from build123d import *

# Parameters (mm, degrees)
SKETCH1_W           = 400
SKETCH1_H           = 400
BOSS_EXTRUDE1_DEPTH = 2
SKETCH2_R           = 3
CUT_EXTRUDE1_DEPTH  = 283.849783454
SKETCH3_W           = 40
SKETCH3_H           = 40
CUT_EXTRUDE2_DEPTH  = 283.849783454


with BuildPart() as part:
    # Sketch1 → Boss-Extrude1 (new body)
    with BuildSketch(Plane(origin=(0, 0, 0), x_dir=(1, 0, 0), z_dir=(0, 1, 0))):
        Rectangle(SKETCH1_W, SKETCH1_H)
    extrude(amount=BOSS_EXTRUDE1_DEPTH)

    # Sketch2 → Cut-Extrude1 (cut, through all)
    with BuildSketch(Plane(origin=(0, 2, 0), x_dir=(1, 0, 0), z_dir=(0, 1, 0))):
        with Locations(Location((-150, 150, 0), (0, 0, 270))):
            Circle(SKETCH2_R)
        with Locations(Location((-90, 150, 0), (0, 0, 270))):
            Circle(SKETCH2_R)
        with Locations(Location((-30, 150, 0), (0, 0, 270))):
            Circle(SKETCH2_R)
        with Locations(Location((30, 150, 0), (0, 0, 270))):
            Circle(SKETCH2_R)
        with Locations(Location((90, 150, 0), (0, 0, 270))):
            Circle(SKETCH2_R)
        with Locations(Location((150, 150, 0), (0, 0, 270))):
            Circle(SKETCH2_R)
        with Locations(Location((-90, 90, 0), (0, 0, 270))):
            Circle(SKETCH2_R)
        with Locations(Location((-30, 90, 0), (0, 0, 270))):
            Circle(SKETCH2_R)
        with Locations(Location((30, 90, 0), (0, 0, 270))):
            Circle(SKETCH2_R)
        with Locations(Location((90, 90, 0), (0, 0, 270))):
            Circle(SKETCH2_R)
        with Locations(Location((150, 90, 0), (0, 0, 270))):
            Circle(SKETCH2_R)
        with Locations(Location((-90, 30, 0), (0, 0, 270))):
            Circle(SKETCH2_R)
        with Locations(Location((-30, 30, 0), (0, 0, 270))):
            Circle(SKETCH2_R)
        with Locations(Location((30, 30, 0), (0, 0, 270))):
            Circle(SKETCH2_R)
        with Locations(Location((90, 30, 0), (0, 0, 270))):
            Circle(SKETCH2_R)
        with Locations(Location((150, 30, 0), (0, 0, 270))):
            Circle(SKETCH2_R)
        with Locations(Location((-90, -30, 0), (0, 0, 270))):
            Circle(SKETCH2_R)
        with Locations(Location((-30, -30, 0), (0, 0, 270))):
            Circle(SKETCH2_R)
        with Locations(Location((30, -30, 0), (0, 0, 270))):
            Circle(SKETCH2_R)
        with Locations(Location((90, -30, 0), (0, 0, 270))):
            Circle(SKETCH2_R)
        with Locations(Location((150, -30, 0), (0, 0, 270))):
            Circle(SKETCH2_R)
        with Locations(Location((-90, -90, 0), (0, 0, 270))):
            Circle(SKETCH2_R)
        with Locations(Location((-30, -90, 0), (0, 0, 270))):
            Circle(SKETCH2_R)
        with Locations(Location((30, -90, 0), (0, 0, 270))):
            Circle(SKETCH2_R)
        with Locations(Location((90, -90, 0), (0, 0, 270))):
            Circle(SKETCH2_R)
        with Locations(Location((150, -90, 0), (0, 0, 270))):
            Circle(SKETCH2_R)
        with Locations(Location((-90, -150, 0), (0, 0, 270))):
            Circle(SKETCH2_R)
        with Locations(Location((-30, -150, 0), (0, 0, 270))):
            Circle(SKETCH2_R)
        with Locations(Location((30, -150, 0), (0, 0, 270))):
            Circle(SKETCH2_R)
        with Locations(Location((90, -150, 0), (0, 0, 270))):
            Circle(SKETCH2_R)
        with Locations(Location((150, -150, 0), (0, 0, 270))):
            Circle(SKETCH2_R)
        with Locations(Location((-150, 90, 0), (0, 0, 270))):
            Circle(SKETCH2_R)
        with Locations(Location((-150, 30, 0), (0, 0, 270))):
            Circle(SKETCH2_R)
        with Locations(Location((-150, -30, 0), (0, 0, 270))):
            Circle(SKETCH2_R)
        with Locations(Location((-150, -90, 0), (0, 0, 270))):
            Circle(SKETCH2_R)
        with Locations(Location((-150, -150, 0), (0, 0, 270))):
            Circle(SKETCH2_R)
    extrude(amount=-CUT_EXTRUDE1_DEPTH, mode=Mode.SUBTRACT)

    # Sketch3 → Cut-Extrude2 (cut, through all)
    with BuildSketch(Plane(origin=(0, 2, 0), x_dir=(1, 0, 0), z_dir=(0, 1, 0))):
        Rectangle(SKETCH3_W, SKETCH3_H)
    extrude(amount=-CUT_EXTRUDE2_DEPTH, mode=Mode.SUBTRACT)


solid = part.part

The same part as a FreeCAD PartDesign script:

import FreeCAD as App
import Part
import Sketcher
from FreeCAD import Vector


def add_polygon(sketch, points):
    """Adds a closed chain of lines whose ends are joined by coincident constraints."""
    first, n = sketch.GeometryCount, len(points)
    for a, b in zip(points, points[1:] + points[:1]):
        sketch.addGeometry(Part.LineSegment(App.Vector(*a, 0), App.Vector(*b, 0)), False)
    for i in range(n):
        sketch.addConstraint(Sketcher.Constraint("Coincident", first + i, 2, first + (i + 1) % n, 1))

doc = App.newDocument("Part")
body = doc.addObject("PartDesign::Body", "Body")

# Sketch on XZ plane
sketch1 = body.newObject("Sketcher::SketchObject", "Sketch")
sketch1.AttachmentSupport = (doc.getObject("XZ_Plane"), [""])
sketch1.MapMode = "FlatFace"
add_polygon(sketch1, [(-200, -200), (-200, 200), (200, 200), (200, -200)])  # lines 0-3
sketch1.addConstraint([
    Sketcher.Constraint("Vertical", 0),
    Sketcher.Constraint("Horizontal", 1),
    Sketcher.Constraint("Vertical", 2),
    Sketcher.Constraint("Horizontal", 3),
    Sketcher.Constraint("Symmetric", 0, 2, 2, 2, -1, 1),
    Sketcher.Constraint("Equal", 3, 0),
    Sketcher.Constraint("DistanceX", 1, 1, 1, 2, 400.0),
])
pad1 = body.newObject("PartDesign::Pad", "Pad")
pad1.Profile = sketch1
pad1.Length = 2
pad1.Reversed = True

# Sketch on XZ plane
sketch2 = body.newObject("Sketcher::SketchObject", "Sketch001")
sketch2.AttachmentSupport = (doc.getObject("XZ_Plane"), [""])
sketch2.MapMode = "FlatFace"
sketch2.AttachmentOffset = App.Placement(Vector(0, 0, -2), App.Rotation())
sketch2.addGeometry([
    Part.Circle(Vector(-150, -150, 0), Vector(0, 0, 1), 3),  # 0
    Part.Circle(Vector(-90, -150, 0), Vector(0, 0, 1), 3),  # 1
    Part.Circle(Vector(-30, -150, 0), Vector(0, 0, 1), 3),  # 2
    Part.Circle(Vector(30, -150, 0), Vector(0, 0, 1), 3),  # 3
    Part.Circle(Vector(90, -150, 0), Vector(0, 0, 1), 3),  # 4
    Part.Circle(Vector(150, -150, 0), Vector(0, 0, 1), 3),  # 5
    Part.Circle(Vector(-90, -90, 0), Vector(0, 0, 1), 3),  # 6
    Part.Circle(Vector(-30, -90, 0), Vector(0, 0, 1), 3),  # 7
    Part.Circle(Vector(30, -90, 0), Vector(0, 0, 1), 3),  # 8
    Part.Circle(Vector(90, -90, 0), Vector(0, 0, 1), 3),  # 9
    Part.Circle(Vector(150, -90, 0), Vector(0, 0, 1), 3),  # 10
    Part.Circle(Vector(-90, -30, 0), Vector(0, 0, 1), 3),  # 11
    Part.Circle(Vector(-30, -30, 0), Vector(0, 0, 1), 3),  # 12
    Part.Circle(Vector(30, -30, 0), Vector(0, 0, 1), 3),  # 13
    Part.Circle(Vector(90, -30, 0), Vector(0, 0, 1), 3),  # 14
    Part.Circle(Vector(150, -30, 0), Vector(0, 0, 1), 3),  # 15
    Part.Circle(Vector(-90, 30, 0), Vector(0, 0, 1), 3),  # 16
    Part.Circle(Vector(-30, 30, 0), Vector(0, 0, 1), 3),  # 17
    Part.Circle(Vector(30, 30, 0), Vector(0, 0, 1), 3),  # 18
    Part.Circle(Vector(90, 30, 0), Vector(0, 0, 1), 3),  # 19
    Part.Circle(Vector(150, 30, 0), Vector(0, 0, 1), 3),  # 20
    Part.Circle(Vector(-90, 90, 0), Vector(0, 0, 1), 3),  # 21
    Part.Circle(Vector(-30, 90, 0), Vector(0, 0, 1), 3),  # 22
    Part.Circle(Vector(30, 90, 0), Vector(0, 0, 1), 3),  # 23
    Part.Circle(Vector(90, 90, 0), Vector(0, 0, 1), 3),  # 24
    Part.Circle(Vector(150, 90, 0), Vector(0, 0, 1), 3),  # 25
    Part.Circle(Vector(-90, 150, 0), Vector(0, 0, 1), 3),  # 26
    Part.Circle(Vector(-30, 150, 0), Vector(0, 0, 1), 3),  # 27
    Part.Circle(Vector(30, 150, 0), Vector(0, 0, 1), 3),  # 28
    Part.Circle(Vector(90, 150, 0), Vector(0, 0, 1), 3),  # 29
    Part.Circle(Vector(150, 150, 0), Vector(0, 0, 1), 3),  # 30
    Part.Circle(Vector(-150, -90, 0), Vector(0, 0, 1), 3),  # 31
    Part.Circle(Vector(-150, -30, 0), Vector(0, 0, 1), 3),  # 32
    Part.Circle(Vector(-150, 30, 0), Vector(0, 0, 1), 3),  # 33
    Part.Circle(Vector(-150, 90, 0), Vector(0, 0, 1), 3),  # 34
    Part.Circle(Vector(-150, 150, 0), Vector(0, 0, 1), 3),  # 35
], False)
sketch2.addConstraint([
    Sketcher.Constraint("Equal", 0, 1),
    Sketcher.Constraint("Equal", 1, 2),
    Sketcher.Constraint("Equal", 2, 3),
    Sketcher.Constraint("Equal", 3, 4),
    Sketcher.Constraint("Equal", 4, 5),
    Sketcher.Constraint("Equal", 5, 6),
    Sketcher.Constraint("Equal", 6, 7),
    Sketcher.Constraint("Equal", 7, 8),
    Sketcher.Constraint("Equal", 8, 9),
    Sketcher.Constraint("Equal", 9, 10),
    Sketcher.Constraint("Equal", 10, 11),
    Sketcher.Constraint("Equal", 11, 12),
    Sketcher.Constraint("Equal", 12, 13),
    Sketcher.Constraint("Equal", 13, 14),
    Sketcher.Constraint("Equal", 14, 15),
    Sketcher.Constraint("Equal", 15, 16),
    Sketcher.Constraint("Equal", 16, 17),
    Sketcher.Constraint("Equal", 17, 18),
    Sketcher.Constraint("Equal", 18, 19),
    Sketcher.Constraint("Equal", 19, 20),
    Sketcher.Constraint("Equal", 20, 21),
    Sketcher.Constraint("Equal", 21, 22),
    Sketcher.Constraint("Equal", 22, 23),
    Sketcher.Constraint("Equal", 23, 24),
    Sketcher.Constraint("Equal", 24, 25),
    Sketcher.Constraint("Equal", 25, 26),
    Sketcher.Constraint("Equal", 26, 27),
    Sketcher.Constraint("Equal", 27, 28),
    Sketcher.Constraint("Equal", 28, 29),
    Sketcher.Constraint("Equal", 29, 30),
    Sketcher.Constraint("Equal", 30, 31),
    Sketcher.Constraint("Equal", 31, 32),
    Sketcher.Constraint("Equal", 32, 33),
    Sketcher.Constraint("Equal", 33, 34),
    Sketcher.Constraint("Equal", 34, 35),
    Sketcher.Constraint("Symmetric", 14, 3, 16, 3, -1, 1),
    Sketcher.Constraint("Symmetric", 13, 3, 17, 3, -1, 1),
    Sketcher.Constraint("Symmetric", 12, 3, 18, 3, -1, 1),
    Sketcher.Constraint("Symmetric", 11, 3, 19, 3, -1, 1),
    Sketcher.Constraint("Symmetric", 9, 3, 21, 3, -1, 1),
    Sketcher.Constraint("Symmetric", 8, 3, 22, 3, -1, 1),
    Sketcher.Constraint("Symmetric", 7, 3, 23, 3, -1, 1),
    Sketcher.Constraint("Symmetric", 6, 3, 24, 3, -1, 1),
    Sketcher.Constraint("Symmetric", 4, 3, 26, 3, -1, 1),
    Sketcher.Constraint("Symmetric", 3, 3, 27, 3, -1, 1),
    Sketcher.Constraint("Symmetric", 2, 3, 28, 3, -1, 1),
    Sketcher.Constraint("Symmetric", 1, 3, 29, 3, -1, 1),
    Sketcher.Constraint("Symmetric", 0, 3, 30, 3, -1, 1),
    Sketcher.Constraint("Symmetric", 25, 3, 31, 3, -1, 1),
    Sketcher.Constraint("Symmetric", 20, 3, 32, 3, -1, 1),
    Sketcher.Constraint("Symmetric", 15, 3, 33, 3, -1, 1),
    Sketcher.Constraint("Symmetric", 10, 3, 34, 3, -1, 1),
    Sketcher.Constraint("Symmetric", 5, 3, 35, 3, -1, 1),
    Sketcher.Constraint("Symmetric", 2, 3, 3, 3, -2),
    Sketcher.Constraint("Symmetric", 1, 3, 4, 3, -2),
    Sketcher.Constraint("Symmetric", 0, 3, 5, 3, -2),
    Sketcher.Constraint("Symmetric", 7, 3, 8, 3, -2),
    Sketcher.Constraint("Symmetric", 6, 3, 9, 3, -2),
    Sketcher.Constraint("Symmetric", 12, 3, 13, 3, -2),
    Sketcher.Constraint("Symmetric", 11, 3, 14, 3, -2),
    Sketcher.Constraint("Symmetric", 10, 3, 31, 3, -2),
    Sketcher.Constraint("Symmetric", 15, 3, 32, 3, -2),
    Sketcher.Constraint("Horizontal", 0, 3, 1, 3),
    Sketcher.Constraint("Horizontal", 1, 3, 2, 3),
    Sketcher.Constraint("Horizontal", 6, 3, 7, 3),
    Sketcher.Constraint("Horizontal", 9, 3, 10, 3),
    Sketcher.Constraint("Horizontal", 11, 3, 12, 3),
    Sketcher.Constraint("Horizontal", 14, 3, 15, 3),
    Sketcher.Constraint("Vertical", 1, 3, 6, 3),
    Sketcher.Constraint("Vertical", 2, 3, 7, 3),
    Sketcher.Constraint("Vertical", 5, 3, 10, 3),
    Sketcher.Constraint("Vertical", 6, 3, 11, 3),
    Sketcher.Constraint("Vertical", 7, 3, 12, 3),
    Sketcher.Constraint("Vertical", 10, 3, 15, 3),
    Sketcher.Constraint("Diameter", 0, 6.0),
    Sketcher.Constraint("DistanceX", 0, 3, -1, 1, 150.0),
    Sketcher.Constraint("DistanceY", 0, 3, -1, 1, 150.0),
    Sketcher.Constraint("DistanceX", 1, 3, -1, 1, 90.0),
    Sketcher.Constraint("DistanceX", 2, 3, -1, 1, 30.0),
    Sketcher.Constraint("DistanceY", 6, 3, -1, 1, 90.0),
    Sketcher.Constraint("DistanceY", 11, 3, -1, 1, 30.0),
])
pocket1 = body.newObject("PartDesign::Pocket", "Pocket")
pocket1.Profile = sketch2
pocket1.Type = "ThroughAll"
pocket1.Reversed = True

# Sketch on XZ plane
sketch3 = body.newObject("Sketcher::SketchObject", "Sketch002")
sketch3.AttachmentSupport = (doc.getObject("XZ_Plane"), [""])
sketch3.MapMode = "FlatFace"
sketch3.AttachmentOffset = App.Placement(Vector(0, 0, -2), App.Rotation())
add_polygon(sketch3, [(-20, -20), (-20, 20), (20, 20), (20, -20)])  # lines 0-3
sketch3.addConstraint([
    Sketcher.Constraint("Vertical", 0),
    Sketcher.Constraint("Horizontal", 1),
    Sketcher.Constraint("Vertical", 2),
    Sketcher.Constraint("Horizontal", 3),
    Sketcher.Constraint("Symmetric", 0, 2, 2, 2, -1, 1),
    Sketcher.Constraint("Equal", 3, 0),
    Sketcher.Constraint("DistanceX", 1, 1, 1, 2, 40.0),
])
pocket2 = body.newObject("PartDesign::Pocket", "Pocket001")
pocket2.Profile = sketch3
pocket2.Type = "ThroughAll"
pocket2.Reversed = True

doc.recompute()
